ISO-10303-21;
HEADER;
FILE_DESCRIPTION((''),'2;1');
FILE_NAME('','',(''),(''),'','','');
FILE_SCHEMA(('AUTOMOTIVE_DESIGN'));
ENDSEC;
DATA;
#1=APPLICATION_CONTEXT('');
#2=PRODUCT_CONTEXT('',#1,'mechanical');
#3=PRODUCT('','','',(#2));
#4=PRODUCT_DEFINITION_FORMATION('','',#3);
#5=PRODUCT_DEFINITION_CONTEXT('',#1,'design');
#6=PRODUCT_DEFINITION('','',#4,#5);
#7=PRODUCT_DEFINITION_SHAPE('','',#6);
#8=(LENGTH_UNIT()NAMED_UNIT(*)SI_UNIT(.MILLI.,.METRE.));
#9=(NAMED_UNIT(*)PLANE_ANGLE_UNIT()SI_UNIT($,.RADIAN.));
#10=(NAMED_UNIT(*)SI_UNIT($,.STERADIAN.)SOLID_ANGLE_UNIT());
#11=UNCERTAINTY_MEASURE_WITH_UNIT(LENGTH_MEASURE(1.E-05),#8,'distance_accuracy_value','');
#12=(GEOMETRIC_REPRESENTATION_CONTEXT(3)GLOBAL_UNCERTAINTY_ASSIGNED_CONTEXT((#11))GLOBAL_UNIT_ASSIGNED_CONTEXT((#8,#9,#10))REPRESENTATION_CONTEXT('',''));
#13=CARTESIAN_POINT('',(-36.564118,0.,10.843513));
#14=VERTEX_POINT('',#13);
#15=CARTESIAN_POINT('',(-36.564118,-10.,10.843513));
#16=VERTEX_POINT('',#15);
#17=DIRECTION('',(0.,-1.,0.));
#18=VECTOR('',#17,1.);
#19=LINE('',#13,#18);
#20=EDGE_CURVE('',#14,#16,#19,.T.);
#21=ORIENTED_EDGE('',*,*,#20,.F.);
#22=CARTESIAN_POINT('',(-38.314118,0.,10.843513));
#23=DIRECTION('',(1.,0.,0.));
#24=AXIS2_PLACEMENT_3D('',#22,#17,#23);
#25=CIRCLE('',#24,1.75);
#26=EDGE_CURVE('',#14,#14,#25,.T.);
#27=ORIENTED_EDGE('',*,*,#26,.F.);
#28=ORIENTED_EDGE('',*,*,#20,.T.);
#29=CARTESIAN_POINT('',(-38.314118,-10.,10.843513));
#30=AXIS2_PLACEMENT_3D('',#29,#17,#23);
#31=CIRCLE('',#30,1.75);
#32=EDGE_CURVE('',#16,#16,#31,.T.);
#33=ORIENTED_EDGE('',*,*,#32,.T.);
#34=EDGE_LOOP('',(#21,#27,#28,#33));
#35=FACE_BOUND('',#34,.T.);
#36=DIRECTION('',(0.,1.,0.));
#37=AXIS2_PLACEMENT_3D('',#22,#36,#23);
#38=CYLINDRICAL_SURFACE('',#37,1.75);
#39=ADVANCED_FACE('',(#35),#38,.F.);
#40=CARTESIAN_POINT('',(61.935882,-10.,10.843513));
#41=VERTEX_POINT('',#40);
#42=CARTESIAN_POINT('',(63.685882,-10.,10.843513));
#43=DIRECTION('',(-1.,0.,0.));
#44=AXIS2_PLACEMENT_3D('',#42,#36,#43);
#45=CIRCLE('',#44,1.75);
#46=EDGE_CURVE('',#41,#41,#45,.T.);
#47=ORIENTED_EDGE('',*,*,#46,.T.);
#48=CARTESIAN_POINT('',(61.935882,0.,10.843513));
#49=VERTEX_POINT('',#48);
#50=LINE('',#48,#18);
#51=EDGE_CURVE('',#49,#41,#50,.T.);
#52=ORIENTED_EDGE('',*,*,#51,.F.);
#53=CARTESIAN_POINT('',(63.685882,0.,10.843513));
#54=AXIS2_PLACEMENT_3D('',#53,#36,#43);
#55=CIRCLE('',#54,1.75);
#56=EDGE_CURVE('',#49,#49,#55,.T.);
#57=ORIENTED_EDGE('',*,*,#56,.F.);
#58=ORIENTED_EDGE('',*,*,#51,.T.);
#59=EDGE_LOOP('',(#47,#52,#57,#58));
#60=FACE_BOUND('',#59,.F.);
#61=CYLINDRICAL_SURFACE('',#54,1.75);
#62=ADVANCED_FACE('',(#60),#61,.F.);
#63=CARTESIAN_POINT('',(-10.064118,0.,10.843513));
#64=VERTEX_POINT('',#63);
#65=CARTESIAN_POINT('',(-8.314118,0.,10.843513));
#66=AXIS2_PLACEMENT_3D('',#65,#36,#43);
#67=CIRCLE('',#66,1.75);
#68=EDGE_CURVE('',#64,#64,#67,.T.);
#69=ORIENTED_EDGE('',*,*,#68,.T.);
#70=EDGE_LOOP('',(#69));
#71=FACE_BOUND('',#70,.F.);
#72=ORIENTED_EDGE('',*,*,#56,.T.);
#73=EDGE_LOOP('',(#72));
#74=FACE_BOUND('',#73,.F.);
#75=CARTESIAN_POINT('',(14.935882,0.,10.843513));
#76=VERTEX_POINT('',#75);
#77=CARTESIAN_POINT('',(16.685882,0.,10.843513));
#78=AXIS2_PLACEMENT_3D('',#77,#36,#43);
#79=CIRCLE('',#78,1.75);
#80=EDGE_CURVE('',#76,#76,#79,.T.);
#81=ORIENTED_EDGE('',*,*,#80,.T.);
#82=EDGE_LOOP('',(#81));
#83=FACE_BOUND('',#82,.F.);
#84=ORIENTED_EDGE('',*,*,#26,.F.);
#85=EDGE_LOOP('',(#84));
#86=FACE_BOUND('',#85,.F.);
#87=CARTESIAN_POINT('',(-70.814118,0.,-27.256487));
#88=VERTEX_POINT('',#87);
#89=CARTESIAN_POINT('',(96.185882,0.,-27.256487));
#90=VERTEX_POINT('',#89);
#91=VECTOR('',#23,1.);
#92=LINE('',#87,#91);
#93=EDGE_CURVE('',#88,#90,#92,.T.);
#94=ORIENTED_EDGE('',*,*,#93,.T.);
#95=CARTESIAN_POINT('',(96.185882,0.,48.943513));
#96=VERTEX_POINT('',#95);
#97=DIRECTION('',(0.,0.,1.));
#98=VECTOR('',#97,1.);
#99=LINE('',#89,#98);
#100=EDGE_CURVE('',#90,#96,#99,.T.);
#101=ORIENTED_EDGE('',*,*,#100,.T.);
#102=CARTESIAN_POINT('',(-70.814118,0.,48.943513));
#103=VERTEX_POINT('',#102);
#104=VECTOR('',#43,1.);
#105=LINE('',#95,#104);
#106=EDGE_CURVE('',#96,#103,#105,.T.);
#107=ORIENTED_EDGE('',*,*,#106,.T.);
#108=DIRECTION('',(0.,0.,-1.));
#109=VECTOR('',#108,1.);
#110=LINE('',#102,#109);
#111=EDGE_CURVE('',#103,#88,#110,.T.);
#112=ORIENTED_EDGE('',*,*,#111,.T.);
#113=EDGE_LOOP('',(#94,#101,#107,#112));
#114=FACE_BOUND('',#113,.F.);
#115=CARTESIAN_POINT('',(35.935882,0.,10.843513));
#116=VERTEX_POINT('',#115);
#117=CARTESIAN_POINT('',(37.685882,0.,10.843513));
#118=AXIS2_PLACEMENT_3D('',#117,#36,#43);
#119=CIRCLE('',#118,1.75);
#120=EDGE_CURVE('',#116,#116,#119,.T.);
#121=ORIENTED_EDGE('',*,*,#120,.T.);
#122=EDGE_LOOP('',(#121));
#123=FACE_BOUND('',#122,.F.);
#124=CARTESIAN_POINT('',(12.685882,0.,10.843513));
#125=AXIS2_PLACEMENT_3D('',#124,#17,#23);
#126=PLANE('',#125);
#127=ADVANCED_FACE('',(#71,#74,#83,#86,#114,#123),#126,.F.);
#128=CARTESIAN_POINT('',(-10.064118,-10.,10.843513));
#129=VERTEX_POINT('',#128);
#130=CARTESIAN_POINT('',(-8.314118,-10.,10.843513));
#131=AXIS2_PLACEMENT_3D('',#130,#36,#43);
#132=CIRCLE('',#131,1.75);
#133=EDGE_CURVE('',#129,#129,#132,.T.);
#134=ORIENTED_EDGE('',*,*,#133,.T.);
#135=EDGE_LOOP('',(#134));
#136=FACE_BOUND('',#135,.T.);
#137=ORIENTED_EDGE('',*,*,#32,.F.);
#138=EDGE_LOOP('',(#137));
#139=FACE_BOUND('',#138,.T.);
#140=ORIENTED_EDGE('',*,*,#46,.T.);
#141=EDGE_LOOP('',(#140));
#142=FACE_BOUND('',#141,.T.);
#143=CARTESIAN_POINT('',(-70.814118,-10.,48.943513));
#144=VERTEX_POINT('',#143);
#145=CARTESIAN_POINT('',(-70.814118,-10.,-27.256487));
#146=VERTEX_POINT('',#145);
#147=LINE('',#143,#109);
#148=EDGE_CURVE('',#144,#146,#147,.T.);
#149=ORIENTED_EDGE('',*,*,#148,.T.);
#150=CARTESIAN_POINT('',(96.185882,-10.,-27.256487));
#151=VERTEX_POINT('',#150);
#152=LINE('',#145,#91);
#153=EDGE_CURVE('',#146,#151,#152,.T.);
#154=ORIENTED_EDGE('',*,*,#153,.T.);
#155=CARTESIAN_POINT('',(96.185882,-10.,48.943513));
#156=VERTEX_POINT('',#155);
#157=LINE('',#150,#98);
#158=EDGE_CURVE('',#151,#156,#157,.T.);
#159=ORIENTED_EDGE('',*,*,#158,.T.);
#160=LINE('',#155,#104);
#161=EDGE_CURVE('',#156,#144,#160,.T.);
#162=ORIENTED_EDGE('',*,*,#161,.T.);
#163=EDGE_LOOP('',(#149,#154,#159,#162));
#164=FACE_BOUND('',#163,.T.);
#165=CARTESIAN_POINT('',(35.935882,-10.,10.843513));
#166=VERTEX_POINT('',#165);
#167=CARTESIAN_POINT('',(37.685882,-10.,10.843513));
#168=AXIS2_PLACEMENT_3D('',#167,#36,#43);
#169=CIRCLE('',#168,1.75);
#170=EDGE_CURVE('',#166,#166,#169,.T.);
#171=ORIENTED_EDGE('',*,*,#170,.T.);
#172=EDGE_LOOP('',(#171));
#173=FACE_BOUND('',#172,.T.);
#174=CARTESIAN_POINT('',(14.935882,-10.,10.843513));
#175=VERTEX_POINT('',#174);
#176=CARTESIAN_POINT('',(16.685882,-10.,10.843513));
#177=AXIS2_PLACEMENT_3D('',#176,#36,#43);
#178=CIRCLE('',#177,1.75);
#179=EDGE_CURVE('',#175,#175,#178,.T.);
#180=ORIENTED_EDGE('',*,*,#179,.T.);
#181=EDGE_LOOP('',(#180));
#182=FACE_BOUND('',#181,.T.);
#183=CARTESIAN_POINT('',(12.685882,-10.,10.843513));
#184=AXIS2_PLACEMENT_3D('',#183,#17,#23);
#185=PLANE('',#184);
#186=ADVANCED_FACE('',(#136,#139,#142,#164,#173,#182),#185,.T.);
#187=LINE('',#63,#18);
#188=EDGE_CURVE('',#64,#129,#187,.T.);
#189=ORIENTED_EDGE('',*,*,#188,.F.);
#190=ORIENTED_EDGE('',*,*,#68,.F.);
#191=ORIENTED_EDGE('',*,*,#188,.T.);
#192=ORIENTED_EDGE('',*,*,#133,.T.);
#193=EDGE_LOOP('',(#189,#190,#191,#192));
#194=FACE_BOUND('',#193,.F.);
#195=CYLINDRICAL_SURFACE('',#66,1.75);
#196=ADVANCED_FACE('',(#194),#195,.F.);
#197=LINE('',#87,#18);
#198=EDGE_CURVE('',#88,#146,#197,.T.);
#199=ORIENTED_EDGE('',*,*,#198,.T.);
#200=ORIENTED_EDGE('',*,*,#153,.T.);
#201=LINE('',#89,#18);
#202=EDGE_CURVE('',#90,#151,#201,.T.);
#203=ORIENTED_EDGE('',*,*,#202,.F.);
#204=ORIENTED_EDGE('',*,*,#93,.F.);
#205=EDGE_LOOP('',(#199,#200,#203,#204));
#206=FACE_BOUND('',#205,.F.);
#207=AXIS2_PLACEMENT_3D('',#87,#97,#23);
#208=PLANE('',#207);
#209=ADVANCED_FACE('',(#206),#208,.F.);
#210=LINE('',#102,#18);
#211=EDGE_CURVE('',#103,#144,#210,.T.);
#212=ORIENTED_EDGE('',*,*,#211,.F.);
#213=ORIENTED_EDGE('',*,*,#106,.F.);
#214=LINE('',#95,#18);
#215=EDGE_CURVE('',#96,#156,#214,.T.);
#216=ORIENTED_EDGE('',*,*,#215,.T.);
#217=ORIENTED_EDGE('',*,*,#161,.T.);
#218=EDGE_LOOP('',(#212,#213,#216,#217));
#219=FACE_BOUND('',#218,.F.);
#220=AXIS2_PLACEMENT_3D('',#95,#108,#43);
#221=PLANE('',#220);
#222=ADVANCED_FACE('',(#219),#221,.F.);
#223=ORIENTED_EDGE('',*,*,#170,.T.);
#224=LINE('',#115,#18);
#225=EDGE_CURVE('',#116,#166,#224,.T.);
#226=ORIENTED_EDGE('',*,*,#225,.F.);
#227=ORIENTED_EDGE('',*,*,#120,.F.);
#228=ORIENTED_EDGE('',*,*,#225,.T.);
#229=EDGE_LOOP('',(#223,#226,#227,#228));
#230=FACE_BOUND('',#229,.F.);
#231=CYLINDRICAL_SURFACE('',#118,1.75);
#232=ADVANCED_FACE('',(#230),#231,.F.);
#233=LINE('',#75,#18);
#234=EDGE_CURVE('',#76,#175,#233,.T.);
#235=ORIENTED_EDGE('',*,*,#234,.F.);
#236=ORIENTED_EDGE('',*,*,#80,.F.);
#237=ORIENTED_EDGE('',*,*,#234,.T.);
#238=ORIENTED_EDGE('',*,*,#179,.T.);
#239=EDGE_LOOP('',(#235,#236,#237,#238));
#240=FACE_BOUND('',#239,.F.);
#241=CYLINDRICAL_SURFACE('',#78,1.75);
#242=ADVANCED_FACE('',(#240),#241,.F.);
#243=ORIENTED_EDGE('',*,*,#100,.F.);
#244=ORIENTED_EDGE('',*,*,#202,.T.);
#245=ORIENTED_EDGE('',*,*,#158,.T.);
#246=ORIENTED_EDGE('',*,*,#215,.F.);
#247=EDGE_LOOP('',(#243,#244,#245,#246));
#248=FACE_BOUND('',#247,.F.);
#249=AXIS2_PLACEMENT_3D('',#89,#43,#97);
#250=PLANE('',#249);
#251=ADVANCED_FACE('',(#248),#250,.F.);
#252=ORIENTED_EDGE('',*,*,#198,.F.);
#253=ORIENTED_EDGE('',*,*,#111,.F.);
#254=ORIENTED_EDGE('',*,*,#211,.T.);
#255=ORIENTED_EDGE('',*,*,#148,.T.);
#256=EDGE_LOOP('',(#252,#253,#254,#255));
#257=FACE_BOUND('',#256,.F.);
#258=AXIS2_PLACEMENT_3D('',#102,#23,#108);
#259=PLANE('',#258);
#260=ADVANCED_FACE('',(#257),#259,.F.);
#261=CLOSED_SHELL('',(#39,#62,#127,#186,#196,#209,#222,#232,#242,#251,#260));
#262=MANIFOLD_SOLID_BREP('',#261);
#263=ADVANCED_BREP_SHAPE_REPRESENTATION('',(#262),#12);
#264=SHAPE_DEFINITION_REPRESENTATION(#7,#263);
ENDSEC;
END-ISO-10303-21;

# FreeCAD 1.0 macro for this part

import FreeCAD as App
import Part
import Sketcher
from FreeCAD import Vector


def add_polygon(sketch, points):
    """Adds a closed chain of lines whose ends are joined by coincident constraints."""
    first, n = sketch.GeometryCount, len(points)
    for a, b in zip(points, points[1:] + points[:1]):
        sketch.addGeometry(Part.LineSegment(App.Vector(*a, 0), App.Vector(*b, 0)), False)
    for i in range(n):
        sketch.addConstraint(Sketcher.Constraint("Coincident", first + i, 2, first + (i + 1) % n, 1))

doc = App.newDocument("Part")
body = doc.addObject("PartDesign::Body", "Body")

# Sketch on XZ plane
sketch1 = doc.addObject("Sketcher::SketchObject", "Sketch")
body.addObject(sketch1)
sketch1.AttachmentSupport = (doc.XZ_Plane, [""])
sketch1.MapMode = "FlatFace"
add_polygon(sketch1, [(96.185882, 48.943513), (-70.814118, 48.943513), (-70.814118, -27.256487), (96.185882, -27.256487)])  # lines 0-3
sketch1.addGeometry(Part.Circle(Vector(63.685882, 10.843513, 0), Vector(0, 0, 1), 1.75), False)  # 4
sketch1.addGeometry(Part.Circle(Vector(-38.314118, 10.843513, 0), Vector(0, 0, 1), 1.75), False)  # 5
sketch1.addGeometry(Part.Circle(Vector(-8.314118, 10.843513, 0), Vector(0, 0, 1), 1.75), False)  # 6
sketch1.addGeometry(Part.Circle(Vector(16.685882, 10.843513, 0), Vector(0, 0, 1), 1.75), False)  # 7
sketch1.addGeometry(Part.Circle(Vector(37.685882, 10.843513, 0), Vector(0, 0, 1), 1.75), False)  # 8
sketch1.addConstraint(Sketcher.Constraint("Horizontal", 0))
sketch1.addConstraint(Sketcher.Constraint("Vertical", 1))
sketch1.addConstraint(Sketcher.Constraint("Horizontal", 2))
sketch1.addConstraint(Sketcher.Constraint("Vertical", 3))
sketch1.addConstraint(Sketcher.Constraint("Equal", 4, 5))
sketch1.addConstraint(Sketcher.Constraint("Equal", 5, 6))
sketch1.addConstraint(Sketcher.Constraint("Equal", 6, 7))
sketch1.addConstraint(Sketcher.Constraint("Equal", 7, 8))
sketch1.addConstraint(Sketcher.Constraint("Horizontal", 4, 3, 5, 3))
sketch1.addConstraint(Sketcher.Constraint("Horizontal", 5, 3, 6, 3))
sketch1.addConstraint(Sketcher.Constraint("Horizontal", 6, 3, 7, 3))
sketch1.addConstraint(Sketcher.Constraint("Horizontal", 7, 3, 8, 3))
sketch1.addConstraint(Sketcher.Constraint("Diameter", 4, 3.5))
sketch1.addConstraint(Sketcher.Constraint("DistanceX", 0, 2, 0, 1, 167.0))
sketch1.addConstraint(Sketcher.Constraint("DistanceY", 1, 2, 1, 1, 76.2))
sketch1.addConstraint(Sketcher.Constraint("DistanceX", 5, 3, 4, 3, 102.0))
sketch1.addConstraint(Sketcher.Constraint("DistanceX", 5, 3, 6, 3, 30.0))
sketch1.addConstraint(Sketcher.Constraint("DistanceX", 6, 3, 7, 3, 25.0))
sketch1.addConstraint(Sketcher.Constraint("DistanceX", 7, 3, 8, 3, 21.0))
sketch1.addConstraint(Sketcher.Constraint("DistanceX", 0, 2, 5, 3, 32.5))
sketch1.addConstraint(Sketcher.Constraint("DistanceY", 5, 3, 0, 2, 38.1))
sketch1.addConstraint(Sketcher.Constraint("DistanceX", -1, 1, 7, 3, 16.685882))
sketch1.addConstraint(Sketcher.Constraint("DistanceY", -1, 1, 4, 3, 10.843513))
pad1 = doc.addObject("PartDesign::Pad", "Pad")
body.addObject(pad1)
pad1.Profile = sketch1
pad1.Length = 10

doc.recompute()
